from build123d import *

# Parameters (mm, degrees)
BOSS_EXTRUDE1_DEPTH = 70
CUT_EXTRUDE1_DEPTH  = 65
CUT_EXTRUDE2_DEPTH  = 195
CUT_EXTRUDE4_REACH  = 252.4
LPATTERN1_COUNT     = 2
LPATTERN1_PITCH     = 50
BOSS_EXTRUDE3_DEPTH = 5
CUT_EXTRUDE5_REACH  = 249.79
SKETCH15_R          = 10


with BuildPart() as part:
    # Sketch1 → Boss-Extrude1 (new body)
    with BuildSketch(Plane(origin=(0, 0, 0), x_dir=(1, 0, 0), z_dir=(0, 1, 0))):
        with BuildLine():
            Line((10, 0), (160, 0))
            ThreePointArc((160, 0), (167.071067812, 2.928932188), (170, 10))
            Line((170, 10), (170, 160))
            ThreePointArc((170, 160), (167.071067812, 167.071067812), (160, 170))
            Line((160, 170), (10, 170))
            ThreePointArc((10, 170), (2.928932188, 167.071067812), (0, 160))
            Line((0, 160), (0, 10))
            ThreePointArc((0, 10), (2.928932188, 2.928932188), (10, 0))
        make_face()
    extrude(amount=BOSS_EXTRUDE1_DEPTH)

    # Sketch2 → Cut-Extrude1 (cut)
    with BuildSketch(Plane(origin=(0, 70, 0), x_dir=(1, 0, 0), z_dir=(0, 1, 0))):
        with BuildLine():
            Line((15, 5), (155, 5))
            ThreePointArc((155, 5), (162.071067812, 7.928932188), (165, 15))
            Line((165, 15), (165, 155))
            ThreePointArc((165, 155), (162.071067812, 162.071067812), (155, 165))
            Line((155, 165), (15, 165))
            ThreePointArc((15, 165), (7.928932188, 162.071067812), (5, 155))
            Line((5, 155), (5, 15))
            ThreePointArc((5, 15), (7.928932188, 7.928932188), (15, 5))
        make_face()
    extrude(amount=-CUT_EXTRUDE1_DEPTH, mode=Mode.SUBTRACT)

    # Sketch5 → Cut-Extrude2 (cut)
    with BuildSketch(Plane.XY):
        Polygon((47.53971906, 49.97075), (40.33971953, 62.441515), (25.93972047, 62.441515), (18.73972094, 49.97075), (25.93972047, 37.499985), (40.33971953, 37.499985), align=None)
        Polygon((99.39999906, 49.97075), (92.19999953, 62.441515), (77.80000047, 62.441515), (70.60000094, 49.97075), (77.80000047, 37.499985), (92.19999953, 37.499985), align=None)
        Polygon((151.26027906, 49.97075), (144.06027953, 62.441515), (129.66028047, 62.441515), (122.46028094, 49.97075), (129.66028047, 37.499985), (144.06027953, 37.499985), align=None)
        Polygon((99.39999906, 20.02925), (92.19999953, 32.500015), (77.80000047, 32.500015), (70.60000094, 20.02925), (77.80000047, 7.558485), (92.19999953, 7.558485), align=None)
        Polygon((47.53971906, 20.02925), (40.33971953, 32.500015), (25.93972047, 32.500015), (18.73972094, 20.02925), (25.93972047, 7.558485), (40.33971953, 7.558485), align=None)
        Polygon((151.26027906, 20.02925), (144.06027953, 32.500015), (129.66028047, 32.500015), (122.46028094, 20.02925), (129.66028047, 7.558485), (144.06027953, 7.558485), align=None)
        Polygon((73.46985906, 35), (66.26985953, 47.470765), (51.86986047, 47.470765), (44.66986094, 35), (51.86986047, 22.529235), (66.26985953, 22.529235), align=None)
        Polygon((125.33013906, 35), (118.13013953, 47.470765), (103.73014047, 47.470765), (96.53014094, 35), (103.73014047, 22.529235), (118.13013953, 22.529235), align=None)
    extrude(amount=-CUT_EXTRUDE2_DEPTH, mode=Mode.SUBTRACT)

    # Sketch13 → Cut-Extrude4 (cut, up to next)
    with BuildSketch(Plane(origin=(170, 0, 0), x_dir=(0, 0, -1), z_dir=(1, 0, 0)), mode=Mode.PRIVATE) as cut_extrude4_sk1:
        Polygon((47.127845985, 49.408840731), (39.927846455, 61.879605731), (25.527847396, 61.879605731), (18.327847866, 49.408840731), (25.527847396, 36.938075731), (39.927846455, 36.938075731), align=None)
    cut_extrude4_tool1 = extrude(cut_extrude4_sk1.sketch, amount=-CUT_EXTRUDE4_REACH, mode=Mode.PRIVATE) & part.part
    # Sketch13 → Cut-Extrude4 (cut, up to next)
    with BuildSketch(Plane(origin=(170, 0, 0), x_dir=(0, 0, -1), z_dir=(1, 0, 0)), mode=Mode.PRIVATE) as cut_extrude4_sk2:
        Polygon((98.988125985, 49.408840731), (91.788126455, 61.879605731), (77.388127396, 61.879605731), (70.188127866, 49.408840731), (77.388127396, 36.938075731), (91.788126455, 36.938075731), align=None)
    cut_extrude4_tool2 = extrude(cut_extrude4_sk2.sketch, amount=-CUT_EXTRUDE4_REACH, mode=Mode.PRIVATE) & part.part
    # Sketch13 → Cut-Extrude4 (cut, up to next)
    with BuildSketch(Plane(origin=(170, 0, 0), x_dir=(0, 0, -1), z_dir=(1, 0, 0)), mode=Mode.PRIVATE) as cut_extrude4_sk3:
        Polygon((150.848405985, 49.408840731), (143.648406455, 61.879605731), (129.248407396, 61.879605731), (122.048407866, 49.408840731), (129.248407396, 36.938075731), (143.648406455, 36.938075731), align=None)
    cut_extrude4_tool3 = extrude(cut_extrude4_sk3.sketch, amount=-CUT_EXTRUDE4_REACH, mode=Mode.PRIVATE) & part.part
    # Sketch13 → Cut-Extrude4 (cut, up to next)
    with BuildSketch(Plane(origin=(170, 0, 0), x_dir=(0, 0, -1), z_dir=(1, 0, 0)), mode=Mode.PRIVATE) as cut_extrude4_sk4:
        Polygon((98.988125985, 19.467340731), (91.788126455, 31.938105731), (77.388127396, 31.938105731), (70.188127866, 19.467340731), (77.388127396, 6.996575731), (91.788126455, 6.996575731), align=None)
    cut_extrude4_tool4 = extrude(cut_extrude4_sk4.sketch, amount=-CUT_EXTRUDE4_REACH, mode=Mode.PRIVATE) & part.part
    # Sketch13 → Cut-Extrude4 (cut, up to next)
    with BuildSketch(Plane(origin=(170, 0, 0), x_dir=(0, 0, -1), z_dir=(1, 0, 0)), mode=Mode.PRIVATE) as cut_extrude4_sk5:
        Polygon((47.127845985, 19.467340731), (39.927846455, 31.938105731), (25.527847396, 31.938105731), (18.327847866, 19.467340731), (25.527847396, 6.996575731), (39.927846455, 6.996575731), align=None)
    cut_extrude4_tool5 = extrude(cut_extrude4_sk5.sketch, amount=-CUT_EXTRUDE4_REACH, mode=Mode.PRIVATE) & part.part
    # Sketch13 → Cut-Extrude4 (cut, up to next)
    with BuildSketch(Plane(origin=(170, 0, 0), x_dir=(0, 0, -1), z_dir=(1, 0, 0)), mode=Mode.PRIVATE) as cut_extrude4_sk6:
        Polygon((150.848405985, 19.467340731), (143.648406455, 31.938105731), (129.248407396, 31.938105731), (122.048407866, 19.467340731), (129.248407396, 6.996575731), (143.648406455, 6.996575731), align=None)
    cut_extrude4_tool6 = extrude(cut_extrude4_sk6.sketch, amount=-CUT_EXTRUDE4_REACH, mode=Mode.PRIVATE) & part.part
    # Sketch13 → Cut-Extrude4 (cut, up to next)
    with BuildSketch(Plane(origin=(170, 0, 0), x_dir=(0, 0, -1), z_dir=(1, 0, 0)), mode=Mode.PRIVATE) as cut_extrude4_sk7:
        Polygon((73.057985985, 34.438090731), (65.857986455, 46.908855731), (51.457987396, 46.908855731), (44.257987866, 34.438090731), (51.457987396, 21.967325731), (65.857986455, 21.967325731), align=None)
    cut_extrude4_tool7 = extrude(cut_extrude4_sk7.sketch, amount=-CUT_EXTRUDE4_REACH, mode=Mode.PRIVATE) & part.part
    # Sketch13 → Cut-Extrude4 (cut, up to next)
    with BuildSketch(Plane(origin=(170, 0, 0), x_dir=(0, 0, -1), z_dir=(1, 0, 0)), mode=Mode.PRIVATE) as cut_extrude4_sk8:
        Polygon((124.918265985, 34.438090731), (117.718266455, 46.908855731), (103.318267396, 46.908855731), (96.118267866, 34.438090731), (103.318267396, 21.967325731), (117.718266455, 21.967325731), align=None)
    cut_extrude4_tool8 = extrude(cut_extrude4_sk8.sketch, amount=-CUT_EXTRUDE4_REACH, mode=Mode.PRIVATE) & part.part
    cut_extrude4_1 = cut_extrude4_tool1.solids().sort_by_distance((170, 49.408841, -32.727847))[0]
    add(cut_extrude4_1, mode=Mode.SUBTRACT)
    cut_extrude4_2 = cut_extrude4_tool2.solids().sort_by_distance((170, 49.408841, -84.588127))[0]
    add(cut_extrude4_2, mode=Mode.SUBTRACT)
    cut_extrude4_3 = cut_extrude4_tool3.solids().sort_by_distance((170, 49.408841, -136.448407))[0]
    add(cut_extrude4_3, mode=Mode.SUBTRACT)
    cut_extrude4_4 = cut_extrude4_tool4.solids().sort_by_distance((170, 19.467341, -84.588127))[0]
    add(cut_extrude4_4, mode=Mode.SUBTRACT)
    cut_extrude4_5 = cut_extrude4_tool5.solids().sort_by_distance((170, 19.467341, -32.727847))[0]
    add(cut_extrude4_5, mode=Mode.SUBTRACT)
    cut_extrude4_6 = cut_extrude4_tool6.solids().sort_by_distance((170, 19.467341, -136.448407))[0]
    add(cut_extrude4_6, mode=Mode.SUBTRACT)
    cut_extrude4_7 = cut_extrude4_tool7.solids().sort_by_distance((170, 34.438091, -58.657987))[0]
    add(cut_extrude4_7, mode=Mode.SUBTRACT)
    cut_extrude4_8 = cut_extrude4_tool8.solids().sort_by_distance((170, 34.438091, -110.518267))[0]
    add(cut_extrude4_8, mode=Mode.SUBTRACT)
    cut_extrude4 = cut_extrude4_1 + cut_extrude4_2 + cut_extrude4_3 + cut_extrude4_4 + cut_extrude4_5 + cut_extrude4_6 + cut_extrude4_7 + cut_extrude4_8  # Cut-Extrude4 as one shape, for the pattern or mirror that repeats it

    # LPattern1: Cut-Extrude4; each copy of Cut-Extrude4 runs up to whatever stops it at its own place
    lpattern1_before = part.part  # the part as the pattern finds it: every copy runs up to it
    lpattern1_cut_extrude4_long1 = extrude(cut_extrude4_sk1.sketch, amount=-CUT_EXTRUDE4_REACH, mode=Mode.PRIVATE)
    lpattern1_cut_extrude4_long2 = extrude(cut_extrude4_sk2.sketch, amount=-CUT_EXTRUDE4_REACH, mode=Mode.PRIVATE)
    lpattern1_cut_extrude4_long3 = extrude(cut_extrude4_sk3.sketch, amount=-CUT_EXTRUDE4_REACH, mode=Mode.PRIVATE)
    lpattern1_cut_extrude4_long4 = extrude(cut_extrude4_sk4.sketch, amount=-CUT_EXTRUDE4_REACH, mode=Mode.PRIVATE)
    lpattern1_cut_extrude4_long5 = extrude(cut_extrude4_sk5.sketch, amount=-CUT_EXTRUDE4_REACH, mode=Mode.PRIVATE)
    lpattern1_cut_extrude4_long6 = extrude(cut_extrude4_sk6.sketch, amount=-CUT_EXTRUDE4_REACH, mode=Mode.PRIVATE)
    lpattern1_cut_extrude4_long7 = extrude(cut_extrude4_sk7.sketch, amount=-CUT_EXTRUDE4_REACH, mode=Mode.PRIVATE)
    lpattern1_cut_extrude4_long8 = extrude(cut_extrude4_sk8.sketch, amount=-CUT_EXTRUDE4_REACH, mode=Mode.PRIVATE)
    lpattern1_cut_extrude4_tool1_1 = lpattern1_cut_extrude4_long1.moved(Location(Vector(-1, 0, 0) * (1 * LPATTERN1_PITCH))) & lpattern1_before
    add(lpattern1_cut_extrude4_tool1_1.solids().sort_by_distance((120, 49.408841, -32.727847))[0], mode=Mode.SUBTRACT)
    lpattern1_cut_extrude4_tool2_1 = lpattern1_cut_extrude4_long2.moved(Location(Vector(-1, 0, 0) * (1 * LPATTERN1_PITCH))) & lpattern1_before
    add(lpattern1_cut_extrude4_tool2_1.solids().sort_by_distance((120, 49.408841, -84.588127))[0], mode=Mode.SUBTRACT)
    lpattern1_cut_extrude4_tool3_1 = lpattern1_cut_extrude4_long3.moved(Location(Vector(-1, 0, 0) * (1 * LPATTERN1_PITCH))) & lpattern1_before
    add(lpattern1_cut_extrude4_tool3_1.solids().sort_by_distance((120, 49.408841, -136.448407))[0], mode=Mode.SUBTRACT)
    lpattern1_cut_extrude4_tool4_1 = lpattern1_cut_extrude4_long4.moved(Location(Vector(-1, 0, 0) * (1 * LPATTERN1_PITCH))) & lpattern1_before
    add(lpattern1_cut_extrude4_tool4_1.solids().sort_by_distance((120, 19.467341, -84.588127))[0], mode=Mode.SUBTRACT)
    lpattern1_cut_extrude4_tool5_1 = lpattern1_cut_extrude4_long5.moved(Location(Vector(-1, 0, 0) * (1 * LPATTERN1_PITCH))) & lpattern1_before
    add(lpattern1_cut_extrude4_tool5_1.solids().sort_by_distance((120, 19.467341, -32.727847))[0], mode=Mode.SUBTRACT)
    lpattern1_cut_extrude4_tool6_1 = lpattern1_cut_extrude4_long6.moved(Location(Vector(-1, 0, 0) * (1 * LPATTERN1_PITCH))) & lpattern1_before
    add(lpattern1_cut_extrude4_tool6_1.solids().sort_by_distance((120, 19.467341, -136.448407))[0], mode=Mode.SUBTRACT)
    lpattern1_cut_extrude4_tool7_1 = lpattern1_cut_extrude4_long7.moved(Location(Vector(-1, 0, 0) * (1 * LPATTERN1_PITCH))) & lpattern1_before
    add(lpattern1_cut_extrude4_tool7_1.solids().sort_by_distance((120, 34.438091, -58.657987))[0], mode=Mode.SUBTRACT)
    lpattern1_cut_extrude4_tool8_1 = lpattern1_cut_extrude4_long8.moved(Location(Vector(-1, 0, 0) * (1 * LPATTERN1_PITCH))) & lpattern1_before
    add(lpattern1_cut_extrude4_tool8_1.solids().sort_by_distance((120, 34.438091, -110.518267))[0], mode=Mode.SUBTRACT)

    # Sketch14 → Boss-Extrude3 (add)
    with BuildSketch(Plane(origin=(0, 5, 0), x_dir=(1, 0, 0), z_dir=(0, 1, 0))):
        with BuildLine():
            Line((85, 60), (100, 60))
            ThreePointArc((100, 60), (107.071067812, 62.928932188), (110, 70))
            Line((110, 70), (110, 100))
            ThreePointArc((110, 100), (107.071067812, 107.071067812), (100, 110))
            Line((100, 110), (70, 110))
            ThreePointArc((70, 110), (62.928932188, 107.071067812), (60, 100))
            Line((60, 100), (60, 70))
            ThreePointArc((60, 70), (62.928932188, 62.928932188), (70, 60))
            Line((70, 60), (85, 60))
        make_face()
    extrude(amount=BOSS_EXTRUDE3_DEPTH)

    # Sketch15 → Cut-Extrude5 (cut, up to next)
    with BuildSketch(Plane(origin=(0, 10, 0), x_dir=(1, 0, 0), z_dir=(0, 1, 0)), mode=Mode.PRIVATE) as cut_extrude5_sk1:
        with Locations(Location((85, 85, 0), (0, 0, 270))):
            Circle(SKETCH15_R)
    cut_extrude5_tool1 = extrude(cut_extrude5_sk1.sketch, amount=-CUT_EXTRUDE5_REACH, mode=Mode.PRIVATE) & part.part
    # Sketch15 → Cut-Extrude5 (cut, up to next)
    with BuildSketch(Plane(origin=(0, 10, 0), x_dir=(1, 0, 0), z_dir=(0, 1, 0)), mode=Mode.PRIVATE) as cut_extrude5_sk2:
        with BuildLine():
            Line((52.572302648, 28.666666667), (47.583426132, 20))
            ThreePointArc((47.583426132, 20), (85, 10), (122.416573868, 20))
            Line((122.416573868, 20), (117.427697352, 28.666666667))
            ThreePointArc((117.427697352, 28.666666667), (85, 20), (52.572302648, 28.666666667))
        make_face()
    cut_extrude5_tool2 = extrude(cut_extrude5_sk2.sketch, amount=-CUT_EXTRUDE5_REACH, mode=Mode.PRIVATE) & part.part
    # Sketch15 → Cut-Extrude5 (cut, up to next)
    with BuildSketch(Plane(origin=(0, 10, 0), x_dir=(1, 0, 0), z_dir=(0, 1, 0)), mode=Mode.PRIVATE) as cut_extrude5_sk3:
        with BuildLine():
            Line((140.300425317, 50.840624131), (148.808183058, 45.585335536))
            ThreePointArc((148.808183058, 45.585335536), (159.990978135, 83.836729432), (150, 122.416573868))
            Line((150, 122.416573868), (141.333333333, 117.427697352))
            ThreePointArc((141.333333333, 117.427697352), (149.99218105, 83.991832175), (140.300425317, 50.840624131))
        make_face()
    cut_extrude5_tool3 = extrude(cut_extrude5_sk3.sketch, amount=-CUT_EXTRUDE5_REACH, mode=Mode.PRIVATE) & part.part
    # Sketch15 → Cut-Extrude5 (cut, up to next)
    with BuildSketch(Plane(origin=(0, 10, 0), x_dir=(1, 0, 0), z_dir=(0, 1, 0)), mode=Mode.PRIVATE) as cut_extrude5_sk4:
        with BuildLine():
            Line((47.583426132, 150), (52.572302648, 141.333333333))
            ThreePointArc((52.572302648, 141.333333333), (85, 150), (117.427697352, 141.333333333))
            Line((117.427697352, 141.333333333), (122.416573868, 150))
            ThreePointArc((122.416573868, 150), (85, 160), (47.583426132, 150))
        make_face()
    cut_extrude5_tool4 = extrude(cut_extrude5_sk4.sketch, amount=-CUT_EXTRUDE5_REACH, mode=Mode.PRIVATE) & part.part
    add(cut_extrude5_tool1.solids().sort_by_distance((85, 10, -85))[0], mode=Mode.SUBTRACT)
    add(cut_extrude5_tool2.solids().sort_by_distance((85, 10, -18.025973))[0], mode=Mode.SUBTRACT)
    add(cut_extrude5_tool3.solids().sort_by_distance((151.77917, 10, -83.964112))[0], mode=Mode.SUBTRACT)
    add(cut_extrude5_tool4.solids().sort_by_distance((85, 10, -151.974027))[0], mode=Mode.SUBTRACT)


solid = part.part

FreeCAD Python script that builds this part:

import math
import FreeCAD as App
import Part
import Sketcher

V = App.Vector
Q = App.Units.Quantity


def add_polygon(sketch, points):
    """Adds a closed chain of lines whose ends are joined by coincident constraints."""
    first, n = sketch.GeometryCount, len(points)
    for a, b in zip(points, points[1:] + points[:1]):
        sketch.addGeometry(Part.LineSegment(App.Vector(*a, 0), App.Vector(*b, 0)), False)
    for i in range(n):
        sketch.addConstraint(Sketcher.Constraint("Coincident", first + i, 2, first + (i + 1) % n, 1))

doc = App.newDocument("Part")
body = doc.addObject("PartDesign::Body", "Body")

# Sketch on XZ plane
sketch1 = body.newObject("Sketcher::SketchObject", "Sketch")
sketch1.AttachmentSupport = (doc.getObject("XZ_Plane"), [""])
sketch1.MapMode = "FlatFace"
sketch1.addGeometry([
    Part.LineSegment(V(10, 0, 0), V(160, 0, 0)),  # 0
    Part.ArcOfCircle(Part.Circle(V(160, -10, 0), V(0, 0, 1), 10), math.radians(0), math.radians(90)),  # 1
    Part.LineSegment(V(170, -10, 0), V(170, -160, 0)),  # 2
    Part.ArcOfCircle(Part.Circle(V(160, -160, 0), V(0, 0, 1), 10), math.radians(-90), math.radians(0)),  # 3
    Part.LineSegment(V(160, -170, 0), V(10, -170, 0)),  # 4
    Part.ArcOfCircle(Part.Circle(V(10, -160, 0), V(0, 0, 1), 10), math.radians(180), math.radians(270)),  # 5
    Part.LineSegment(V(0, -160, 0), V(0, -10, 0)),  # 6
    Part.ArcOfCircle(Part.Circle(V(10, -10, 0), V(0, 0, 1), 10), math.radians(90), math.radians(180)),  # 7
], False)
sketch1.addConstraint([
    Sketcher.Constraint("Tangent", 0, 2, 1, 2),
    Sketcher.Constraint("Tangent", 1, 1, 2, 1),
    Sketcher.Constraint("Tangent", 2, 2, 3, 2),
    Sketcher.Constraint("Tangent", 3, 1, 4, 1),
    Sketcher.Constraint("Tangent", 4, 2, 5, 2),
    Sketcher.Constraint("Tangent", 5, 1, 6, 1),
    Sketcher.Constraint("Tangent", 6, 2, 7, 2),
    Sketcher.Constraint("Tangent", 7, 1, 0, 1),
    Sketcher.Constraint("Horizontal", 0),
    Sketcher.Constraint("Vertical", 2),
    Sketcher.Constraint("Horizontal", 4),
    Sketcher.Constraint("Vertical", 6),
    Sketcher.Constraint("Equal", 1, 3),
    Sketcher.Constraint("Equal", 3, 5),
    Sketcher.Constraint("Equal", 5, 7),
    Sketcher.Constraint("PointOnObject", 0, 2, -1),
    Sketcher.Constraint("PointOnObject", 5, 1, -2),
    Sketcher.Constraint("Equal", 4, 2),
    Sketcher.Constraint("Radius", 1, Q("10 mm")),
    Sketcher.Constraint("DistanceX", 0, 1, 0, 2, Q("150 mm")),
])
pad1 = body.newObject("PartDesign::Pad", "Pad")
pad1.Profile = sketch1
pad1.Length = 70
pad1.Reversed = True

# Sketch on XZ plane
sketch2 = body.newObject("Sketcher::SketchObject", "Sketch001")
sketch2.AttachmentSupport = (doc.getObject("XZ_Plane"), [""])
sketch2.MapMode = "FlatFace"
sketch2.AttachmentOffset = App.Placement(V(0, 0, -70), App.Rotation())
sketch2.addGeometry([
    Part.LineSegment(V(15, -5, 0), V(155, -5, 0)),  # 0
    Part.ArcOfCircle(Part.Circle(V(155, -15, 0), V(0, 0, 1), 10), math.radians(0), math.radians(90)),  # 1
    Part.LineSegment(V(165, -15, 0), V(165, -155, 0)),  # 2
    Part.ArcOfCircle(Part.Circle(V(155, -155, 0), V(0, 0, 1), 10), math.radians(-90), math.radians(0)),  # 3
    Part.LineSegment(V(155, -165, 0), V(15, -165, 0)),  # 4
    Part.ArcOfCircle(Part.Circle(V(15, -155, 0), V(0, 0, 1), 10), math.radians(180), math.radians(270)),  # 5
    Part.LineSegment(V(5, -155, 0), V(5, -15, 0)),  # 6
    Part.ArcOfCircle(Part.Circle(V(15, -15, 0), V(0, 0, 1), 10), math.radians(90), math.radians(180)),  # 7
], False)
sketch2.addConstraint([
    Sketcher.Constraint("Tangent", 0, 2, 1, 2),
    Sketcher.Constraint("Tangent", 1, 1, 2, 1),
    Sketcher.Constraint("Tangent", 2, 2, 3, 2),
    Sketcher.Constraint("Tangent", 3, 1, 4, 1),
    Sketcher.Constraint("Tangent", 4, 2, 5, 2),
    Sketcher.Constraint("Tangent", 5, 1, 6, 1),
    Sketcher.Constraint("Tangent", 6, 2, 7, 2),
    Sketcher.Constraint("Tangent", 7, 1, 0, 1),
    Sketcher.Constraint("Horizontal", 0),
    Sketcher.Constraint("Vertical", 2),
    Sketcher.Constraint("Horizontal", 4),
    Sketcher.Constraint("Vertical", 6),
    Sketcher.Constraint("Equal", 1, 3),
    Sketcher.Constraint("Equal", 3, 5),
    Sketcher.Constraint("Equal", 5, 7),
    Sketcher.Constraint("Equal", 4, 2),
    Sketcher.Constraint("Radius", 1, Q("10 mm")),
    Sketcher.Constraint("DistanceX", 0, 1, 0, 2, Q("140 mm")),
    Sketcher.Constraint("DistanceX", -1, 1, 1, 3, Q("155 mm")),
    Sketcher.Constraint("DistanceY", 1, 3, -1, 1, Q("15 mm")),
])
pocket1 = body.newObject("PartDesign::Pocket", "Pocket")
pocket1.Profile = sketch2
pocket1.Length = 65
pocket1.Reversed = True

# Sketch on XY plane
sketch3 = body.newObject("Sketcher::SketchObject", "Sketch002")
sketch3.AttachmentSupport = (doc.getObject("XY_Plane"), [""])
sketch3.MapMode = "FlatFace"
add_polygon(sketch3, [(48, 50), (40, 62), (26, 62), (19, 50), (26, 37), (40, 37)])  # lines 0-5
add_polygon(sketch3, [(99, 50), (92, 62), (78, 62), (71, 50), (78, 37), (92, 37)])  # lines 6-11
add_polygon(sketch3, [(151, 50), (144, 62), (130, 62), (122, 50), (130, 37), (144, 37)])  # lines 12-17
add_polygon(sketch3, [(99, 20), (92, 33), (78, 33), (71, 20), (78, 8), (92, 8)])  # lines 18-23
add_polygon(sketch3, [(48, 20), (40, 33), (26, 33), (19, 20), (26, 8), (40, 8)])  # lines 24-29
add_polygon(sketch3, [(151, 20), (144, 33), (130, 33), (122, 20), (130, 8), (144, 8)])  # lines 30-35
add_polygon(sketch3, [(73, 35), (66, 47), (52, 47), (45, 35), (52, 23), (66, 23)])  # lines 36-41
add_polygon(sketch3, [(125, 35), (118, 47), (104, 47), (97, 35), (104, 23), (118, 23)])  # lines 42-47
sketch3.addConstraint([
    Sketcher.Constraint("Horizontal", 1),
    Sketcher.Constraint("Horizontal", 4),
    Sketcher.Constraint("Horizontal", 7),
    Sketcher.Constraint("Horizontal", 10),
    Sketcher.Constraint("Horizontal", 13),
    Sketcher.Constraint("Horizontal", 16),
    Sketcher.Constraint("Horizontal", 19),
    Sketcher.Constraint("Horizontal", 22),
    Sketcher.Constraint("Horizontal", 25),
    Sketcher.Constraint("Horizontal", 28),
    Sketcher.Constraint("Horizontal", 31),
    Sketcher.Constraint("Horizontal", 34),
    Sketcher.Constraint("Horizontal", 37),
    Sketcher.Constraint("Horizontal", 40),
    Sketcher.Constraint("Horizontal", 43),
    Sketcher.Constraint("Horizontal", 46),
    Sketcher.Constraint("Parallel", 0, 3),
    Sketcher.Constraint("Parallel", 2, 5),
    Sketcher.Constraint("Parallel", 3, 6),
    Sketcher.Constraint("Parallel", 5, 8),
    Sketcher.Constraint("Parallel", 6, 9),
    Sketcher.Constraint("Parallel", 8, 11),
    Sketcher.Constraint("Parallel", 9, 12),
    Sketcher.Constraint("Parallel", 11, 14),
    Sketcher.Constraint("Parallel", 12, 15),
    Sketcher.Constraint("Parallel", 14, 17),
    Sketcher.Constraint("Parallel", 15, 18),
    Sketcher.Constraint("Parallel", 17, 20),
    Sketcher.Constraint("Parallel", 18, 21),
    Sketcher.Constraint("Parallel", 20, 23),
    Sketcher.Constraint("Parallel", 21, 24),
    Sketcher.Constraint("Parallel", 23, 26),
    Sketcher.Constraint("Parallel", 24, 27),
    Sketcher.Constraint("Parallel", 26, 29),
    Sketcher.Constraint("Parallel", 27, 30),
    Sketcher.Constraint("Parallel", 29, 32),
    Sketcher.Constraint("Parallel", 30, 33),
    Sketcher.Constraint("Parallel", 32, 35),
    Sketcher.Constraint("Parallel", 33, 36),
    Sketcher.Constraint("Parallel", 35, 38),
    Sketcher.Constraint("Parallel", 36, 39),
    Sketcher.Constraint("Parallel", 38, 41),
    Sketcher.Constraint("Parallel", 39, 42),
    Sketcher.Constraint("Parallel", 41, 44),
    Sketcher.Constraint("Parallel", 42, 45),
    Sketcher.Constraint("Parallel", 44, 47),
    Sketcher.Constraint("Horizontal", 2, 2, 5, 2),
    Sketcher.Constraint("Horizontal", 1, 2, 6, 2),
    Sketcher.Constraint("Horizontal", 5, 2, 8, 2),
    Sketcher.Constraint("Horizontal", 4, 2, 9, 2),
    Sketcher.Constraint("Horizontal", 8, 2, 11, 2),
    Sketcher.Constraint("Horizontal", 7, 2, 12, 2),
    Sketcher.Constraint("Horizontal", 11, 2, 14, 2),
    Sketcher.Constraint("Horizontal", 10, 2, 15, 2),
    Sketcher.Constraint("Horizontal", 14, 2, 17, 2),
    Sketcher.Constraint("Horizontal", 20, 2, 23, 2),
    Sketcher.Constraint("Horizontal", 19, 2, 24, 2),
    Sketcher.Constraint("Horizontal", 23, 2, 26, 2),
    Sketcher.Constraint("Horizontal", 22, 2, 27, 2),
    Sketcher.Constraint("Horizontal", 26, 2, 29, 2),
    Sketcher.Constraint("Horizontal", 25, 2, 30, 2),
    Sketcher.Constraint("Horizontal", 29, 2, 32, 2),
    Sketcher.Constraint("Horizontal", 28, 2, 33, 2),
    Sketcher.Constraint("Horizontal", 32, 2, 35, 2),
    Sketcher.Constraint("Horizontal", 38, 2, 41, 2),
    Sketcher.Constraint("Horizontal", 37, 2, 42, 2),
    Sketcher.Constraint("Horizontal", 41, 2, 44, 2),
    Sketcher.Constraint("Horizontal", 40, 2, 45, 2),
    Sketcher.Constraint("Horizontal", 44, 2, 47, 2),
    Sketcher.Constraint("Vertical", 1, 2, 3, 2),
    Sketcher.Constraint("Vertical", 0, 2, 4, 2),
    Sketcher.Constraint("Vertical", 10, 2, 18, 2),
    Sketcher.Constraint("Vertical", 9, 2, 19, 2),
    Sketcher.Constraint("Vertical", 8, 2, 20, 2),
    Sketcher.Constraint("Vertical", 19, 2, 21, 2),
    Sketcher.Constraint("Vertical", 4, 2, 24, 2),
    Sketcher.Constraint("Vertical", 3, 2, 25, 2),
    Sketcher.Constraint("Vertical", 16, 2, 30, 2),
    Sketcher.Constraint("Vertical", 15, 2, 31, 2),
    Sketcher.Constraint("Vertical", 37, 2, 39, 2),
    Sketcher.Constraint("Equal", 4, 7),
    Sketcher.Constraint("Equal", 10, 13),
    Sketcher.Constraint("Equal", 34, 37),
    Sketcher.Constraint("Equal", 40, 43),
    Sketcher.Constraint("Equal", 35, 36),
    Sketcher.Constraint("Angle", 0, Q("120 deg")),
    Sketcher.Constraint("DistanceX", 1, 2, 1, 1, Q("14.399999 mm")),
    Sketcher.Constraint("DistanceY", -1, 1, 38, 2, Q("35 mm")),
    Sketcher.Constraint("Distance", 0, Q("14.399999 mm")),
    Sketcher.Constraint("DistanceX", -1, 1, 6, 2, Q("92.2 mm")),
    Sketcher.Constraint("DistanceY", 18, 2, 6, 2, Q("29.9415 mm")),
    Sketcher.Constraint("DistanceX", -1, 1, 0, 2, Q("40.33972 mm")),
    Sketcher.Constraint("DistanceY", -1, 1, 2, 2, Q("49.97075 mm")),
    Sketcher.Constraint("DistanceX", -1, 1, 12, 2, Q("144.06028 mm")),
    Sketcher.Constraint("DistanceX", -1, 1, 36, 2, Q("66.26986 mm")),
    Sketcher.Constraint("DistanceX", -1, 1, 42, 2, Q("118.13014 mm")),
])
pocket2 = body.newObject("PartDesign::Pocket", "Pocket001")
pocket2.Profile = sketch3
pocket2.Length = 195

# Sketch on YZ plane
sketch4 = body.newObject("Sketcher::SketchObject", "Sketch003")
sketch4.AttachmentSupport = (doc.getObject("YZ_Plane"), [""])
sketch4.MapMode = "FlatFace"
sketch4.AttachmentOffset = App.Placement(V(0, 0, 170), App.Rotation())
add_polygon(sketch4, [(49, -47), (62, -40), (62, -26), (49, -18), (37, -26), (37, -40)])  # lines 0-5
sketch4.addConstraint([
    Sketcher.Constraint("Vertical", 1),
    Sketcher.Constraint("Vertical", 4),
    Sketcher.Constraint("Parallel", 0, 3),
    Sketcher.Constraint("Parallel", 2, 5),
    Sketcher.Constraint("Horizontal", 1, 2, 3, 2),
    Sketcher.Constraint("Horizontal", 0, 2, 4, 2),
    Sketcher.Constraint("Vertical", 2, 2, 5, 2),
    Sketcher.Constraint("Angle", 0, Q("30 deg")),
    Sketcher.Constraint("DistanceY", 1, 1, 1, 2, Q("14.399999 mm")),
    Sketcher.Constraint("Distance", 0, Q("14.399999 mm")),
    Sketcher.Constraint("DistanceX", -1, 1, 2, 2, Q("49.408841 mm")),
    Sketcher.Constraint("DistanceY", 0, 2, -1, 1, Q("39.927846 mm")),
])
pocket3 = body.newObject("PartDesign::Pocket", "Pocket002")
pocket3.Profile = sketch4
pocket3.Type = "UpToFirst"

# Sketch on YZ plane
sketch5 = body.newObject("Sketcher::SketchObject", "Sketch004")
sketch5.AttachmentSupport = (doc.getObject("YZ_Plane"), [""])
sketch5.MapMode = "FlatFace"
sketch5.AttachmentOffset = App.Placement(V(0, 0, 170), App.Rotation())
add_polygon(sketch5, [(49, -99), (62, -92), (62, -77), (49, -70), (37, -77), (37, -92)])  # lines 0-5
sketch5.addConstraint([
    Sketcher.Constraint("Vertical", 1),
    Sketcher.Constraint("Vertical", 4),
    Sketcher.Constraint("Parallel", 0, 3),
    Sketcher.Constraint("Parallel", 2, 5),
    Sketcher.Constraint("Horizontal", 1, 2, 3, 2),
    Sketcher.Constraint("Horizontal", 0, 2, 4, 2),
    Sketcher.Constraint("Vertical", 2, 2, 5, 2),
    Sketcher.Constraint("Angle", 0, Q("30 deg")),
    Sketcher.Constraint("DistanceY", 1, 1, 1, 2, Q("14.399999 mm")),
    Sketcher.Constraint("Distance", 0, Q("14.399999 mm")),
    Sketcher.Constraint("DistanceX", -1, 1, 2, 2, Q("49.408841 mm")),
    Sketcher.Constraint("DistanceY", 0, 2, -1, 1, Q("91.788126 mm")),
])
pocket4 = body.newObject("PartDesign::Pocket", "Pocket003")
pocket4.Profile = sketch5
pocket4.Type = "UpToFirst"

# Sketch on YZ plane
sketch6 = body.newObject("Sketcher::SketchObject", "Sketch005")
sketch6.AttachmentSupport = (doc.getObject("YZ_Plane"), [""])
sketch6.MapMode = "FlatFace"
sketch6.AttachmentOffset = App.Placement(V(0, 0, 170), App.Rotation())
add_polygon(sketch6, [(49, -151), (62, -144), (62, -129), (49, -122), (37, -129), (37, -144)])  # lines 0-5
sketch6.addConstraint([
    Sketcher.Constraint("Vertical", 1),
    Sketcher.Constraint("Vertical", 4),
    Sketcher.Constraint("Parallel", 0, 3),
    Sketcher.Constraint("Parallel", 2, 5),
    Sketcher.Constraint("Horizontal", 1, 2, 3, 2),
    Sketcher.Constraint("Horizontal", 0, 2, 4, 2),
    Sketcher.Constraint("Vertical", 2, 2, 5, 2),
    Sketcher.Constraint("Angle", 0, Q("30 deg")),
    Sketcher.Constraint("DistanceY", 1, 1, 1, 2, Q("14.399999 mm")),
    Sketcher.Constraint("Distance", 0, Q("14.399999 mm")),
    Sketcher.Constraint("DistanceX", -1, 1, 2, 2, Q("49.408841 mm")),
    Sketcher.Constraint("DistanceY", 0, 2, -1, 1, Q("143.648406 mm")),
])
pocket5 = body.newObject("PartDesign::Pocket", "Pocket004")
pocket5.Profile = sketch6
pocket5.Type = "UpToFirst"

# Sketch on YZ plane
sketch7 = body.newObject("Sketcher::SketchObject", "Sketch006")
sketch7.AttachmentSupport = (doc.getObject("YZ_Plane"), [""])
sketch7.MapMode = "FlatFace"
sketch7.AttachmentOffset = App.Placement(V(0, 0, 170), App.Rotation())
add_polygon(sketch7, [(19, -99), (32, -92), (32, -77), (19, -70), (7, -77), (7, -92)])  # lines 0-5
sketch7.addConstraint([
    Sketcher.Constraint("Vertical", 1),
    Sketcher.Constraint("Vertical", 4),
    Sketcher.Constraint("Parallel", 0, 3),
    Sketcher.Constraint("Parallel", 2, 5),
    Sketcher.Constraint("Horizontal", 1, 2, 3, 2),
    Sketcher.Constraint("Horizontal", 0, 2, 4, 2),
    Sketcher.Constraint("Vertical", 2, 2, 5, 2),
    Sketcher.Constraint("Angle", 0, Q("30 deg")),
    Sketcher.Constraint("DistanceY", 1, 1, 1, 2, Q("14.399999 mm")),
    Sketcher.Constraint("Distance", 0, Q("14.399999 mm")),
    Sketcher.Constraint("DistanceX", -1, 1, 2, 2, Q("19.467341 mm")),
    Sketcher.Constraint("DistanceY", 0, 2, -1, 1, Q("91.788126 mm")),
])
pocket6 = body.newObject("PartDesign::Pocket", "Pocket005")
pocket6.Profile = sketch7
pocket6.Type = "UpToFirst"

# Sketch on YZ plane
sketch8 = body.newObject("Sketcher::SketchObject", "Sketch007")
sketch8.AttachmentSupport = (doc.getObject("YZ_Plane"), [""])
sketch8.MapMode = "FlatFace"
sketch8.AttachmentOffset = App.Placement(V(0, 0, 170), App.Rotation())
add_polygon(sketch8, [(19, -47), (32, -40), (32, -26), (19, -18), (7, -26), (7, -40)])  # lines 0-5
sketch8.addConstraint([
    Sketcher.Constraint("Vertical", 1),
    Sketcher.Constraint("Vertical", 4),
    Sketcher.Constraint("Parallel", 0, 3),
    Sketcher.Constraint("Parallel", 2, 5),
    Sketcher.Constraint("Horizontal", 1, 2, 3, 2),
    Sketcher.Constraint("Horizontal", 0, 2, 4, 2),
    Sketcher.Constraint("Vertical", 2, 2, 5, 2),
    Sketcher.Constraint("Angle", 0, Q("30 deg")),
    Sketcher.Constraint("DistanceY", 1, 1, 1, 2, Q("14.399999 mm")),
    Sketcher.Constraint("Distance", 0, Q("14.399999 mm")),
    Sketcher.Constraint("DistanceX", -1, 1, 2, 2, Q("19.467341 mm")),
    Sketcher.Constraint("DistanceY", 0, 2, -1, 1, Q("39.927846 mm")),
])
pocket7 = body.newObject("PartDesign::Pocket", "Pocket006")
pocket7.Profile = sketch8
pocket7.Type = "UpToFirst"

# Sketch on YZ plane
sketch9 = body.newObject("Sketcher::SketchObject", "Sketch008")
sketch9.AttachmentSupport = (doc.getObject("YZ_Plane"), [""])
sketch9.MapMode = "FlatFace"
sketch9.AttachmentOffset = App.Placement(V(0, 0, 170), App.Rotation())
add_polygon(sketch9, [(19, -151), (32, -144), (32, -129), (19, -122), (7, -129), (7, -144)])  # lines 0-5
sketch9.addConstraint([
    Sketcher.Constraint("Vertical", 1),
    Sketcher.Constraint("Vertical", 4),
    Sketcher.Constraint("Parallel", 0, 3),
    Sketcher.Constraint("Parallel", 2, 5),
    Sketcher.Constraint("Horizontal", 1, 2, 3, 2),
    Sketcher.Constraint("Horizontal", 0, 2, 4, 2),
    Sketcher.Constraint("Vertical", 2, 2, 5, 2),
    Sketcher.Constraint("Angle", 0, Q("30 deg")),
    Sketcher.Constraint("DistanceY", 1, 1, 1, 2, Q("14.399999 mm")),
    Sketcher.Constraint("Distance", 0, Q("14.399999 mm")),
    Sketcher.Constraint("DistanceX", -1, 1, 2, 2, Q("19.467341 mm")),
    Sketcher.Constraint("DistanceY", 0, 2, -1, 1, Q("143.648406 mm")),
])
pocket8 = body.newObject("PartDesign::Pocket", "Pocket007")
pocket8.Profile = sketch9
pocket8.Type = "UpToFirst"

# Sketch on YZ plane
sketch10 = body.newObject("Sketcher::SketchObject", "Sketch009")
sketch10.AttachmentSupport = (doc.getObject("YZ_Plane"), [""])
sketch10.MapMode = "FlatFace"
sketch10.AttachmentOffset = App.Placement(V(0, 0, 170), App.Rotation())
add_polygon(sketch10, [(34, -73), (47, -66), (47, -51), (34, -44), (22, -51), (22, -66)])  # lines 0-5
sketch10.addConstraint([
    Sketcher.Constraint("Vertical", 1),
    Sketcher.Constraint("Vertical", 4),
    Sketcher.Constraint("Parallel", 0, 3),
    Sketcher.Constraint("Parallel", 2, 5),
    Sketcher.Constraint("Horizontal", 1, 2, 3, 2),
    Sketcher.Constraint("Horizontal", 0, 2, 4, 2),
    Sketcher.Constraint("Vertical", 2, 2, 5, 2),
    Sketcher.Constraint("Angle", 0, Q("30 deg")),
    Sketcher.Constraint("DistanceY", 1, 1, 1, 2, Q("14.399999 mm")),
    Sketcher.Constraint("Distance", 0, Q("14.399999 mm")),
    Sketcher.Constraint("DistanceX", -1, 1, 2, 2, Q("34.438091 mm")),
    Sketcher.Constraint("DistanceY", 0, 2, -1, 1, Q("65.857986 mm")),
])
pocket9 = body.newObject("PartDesign::Pocket", "Pocket008")
pocket9.Profile = sketch10
pocket9.Type = "UpToFirst"

# Sketch on YZ plane
sketch11 = body.newObject("Sketcher::SketchObject", "Sketch010")
sketch11.AttachmentSupport = (doc.getObject("YZ_Plane"), [""])
sketch11.MapMode = "FlatFace"
sketch11.AttachmentOffset = App.Placement(V(0, 0, 170), App.Rotation())
add_polygon(sketch11, [(34, -125), (47, -118), (47, -103), (34, -96), (22, -103), (22, -118)])  # lines 0-5
sketch11.addConstraint([
    Sketcher.Constraint("Vertical", 1),
    Sketcher.Constraint("Vertical", 4),
    Sketcher.Constraint("Parallel", 0, 3),
    Sketcher.Constraint("Parallel", 2, 5),
    Sketcher.Constraint("Horizontal", 1, 2, 3, 2),
    Sketcher.Constraint("Horizontal", 0, 2, 4, 2),
    Sketcher.Constraint("Vertical", 2, 2, 5, 2),
    Sketcher.Constraint("Angle", 0, Q("30 deg")),
    Sketcher.Constraint("DistanceY", 1, 1, 1, 2, Q("14.399999 mm")),
    Sketcher.Constraint("Distance", 0, Q("14.399999 mm")),
    Sketcher.Constraint("DistanceX", -1, 1, 2, 2, Q("34.438091 mm")),
    Sketcher.Constraint("DistanceY", 0, 2, -1, 1, Q("117.718266 mm")),
])
pocket10 = body.newObject("PartDesign::Pocket", "Pocket009")
pocket10.Profile = sketch11
pocket10.Type = "UpToFirst"
pocket11 = body.newObject("PartDesign::Pocket", "Pocket010")
pocket11.Profile = sketch4
pocket11.Length = 170
pocket12 = body.newObject("PartDesign::Pocket", "Pocket011")
pocket12.Profile = sketch5
pocket12.Length = 170
pocket13 = body.newObject("PartDesign::Pocket", "Pocket012")
pocket13.Profile = sketch6
pocket13.Length = 170
pocket14 = body.newObject("PartDesign::Pocket", "Pocket013")
pocket14.Profile = sketch7
pocket14.Length = 170
pocket15 = body.newObject("PartDesign::Pocket", "Pocket014")
pocket15.Profile = sketch8
pocket15.Length = 170
pocket16 = body.newObject("PartDesign::Pocket", "Pocket015")
pocket16.Profile = sketch9
pocket16.Length = 170
pocket17 = body.newObject("PartDesign::Pocket", "Pocket016")
pocket17.Profile = sketch10
pocket17.Length = 170
pocket18 = body.newObject("PartDesign::Pocket", "Pocket017")
pocket18.Profile = sketch11
pocket18.Length = 170

# Sketch on XZ plane
sketch12 = body.newObject("Sketcher::SketchObject", "Sketch011")
sketch12.AttachmentSupport = (doc.getObject("XZ_Plane"), [""])
sketch12.MapMode = "FlatFace"
sketch12.AttachmentOffset = App.Placement(V(0, 0, -5), App.Rotation())
sketch12.addGeometry([
    Part.ArcOfCircle(Part.Circle(V(100, -70, 0), V(0, 0, 1), 10), math.radians(0), math.radians(90)),  # 0
    Part.LineSegment(V(110, -70, 0), V(110, -100, 0)),  # 1
    Part.ArcOfCircle(Part.Circle(V(100, -100, 0), V(0, 0, 1), 10), math.radians(-90), math.radians(0)),  # 2
    Part.LineSegment(V(100, -110, 0), V(70, -110, 0)),  # 3
    Part.ArcOfCircle(Part.Circle(V(70, -100, 0), V(0, 0, 1), 10), math.radians(180), math.radians(270)),  # 4
    Part.LineSegment(V(60, -100, 0), V(60, -70, 0)),  # 5
    Part.ArcOfCircle(Part.Circle(V(70, -70, 0), V(0, 0, 1), 10), math.radians(90), math.radians(180)),  # 6
    Part.LineSegment(V(70, -60, 0), V(100, -60, 0)),  # 7
], False)
sketch12.addConstraint([
    Sketcher.Constraint("Tangent", 0, 1, 1, 1),
    Sketcher.Constraint("Tangent", 1, 2, 2, 2),
    Sketcher.Constraint("Tangent", 2, 1, 3, 1),
    Sketcher.Constraint("Tangent", 3, 2, 4, 2),
    Sketcher.Constraint("Tangent", 4, 1, 5, 1),
    Sketcher.Constraint("Tangent", 5, 2, 6, 2),
    Sketcher.Constraint("Tangent", 6, 1, 7, 1),
    Sketcher.Constraint("Tangent", 7, 2, 0, 2),
    Sketcher.Constraint("Vertical", 1),
    Sketcher.Constraint("Horizontal", 3),
    Sketcher.Constraint("Vertical", 5),
    Sketcher.Constraint("Horizontal", 7),
    Sketcher.Constraint("Equal", 0, 2),
    Sketcher.Constraint("Equal", 2, 4),
    Sketcher.Constraint("Equal", 4, 6),
    Sketcher.Constraint("Equal", 7, 1),
    Sketcher.Constraint("Radius", 0, Q("10 mm")),
    Sketcher.Constraint("DistanceX", 3, 2, 3, 1, Q("30 mm")),
    Sketcher.Constraint("DistanceX", -1, 1, 0, 3, Q("100 mm")),
    Sketcher.Constraint("DistanceY", 0, 3, -1, 1, Q("70 mm")),
])
pad2 = body.newObject("PartDesign::Pad", "Pad001")
pad2.Profile = sketch12
pad2.Length = 5
pad2.Reversed = True

# Sketch on XZ plane
sketch13 = body.newObject("Sketcher::SketchObject", "Sketch012")
sketch13.AttachmentSupport = (doc.getObject("XZ_Plane"), [""])
sketch13.MapMode = "FlatFace"
sketch13.AttachmentOffset = App.Placement(V(0, 0, -10), App.Rotation())
sketch13.addGeometry(Part.Circle(V(85, -85, 0), V(0, 0, 1), 10), False)
sketch13.addConstraint([
    Sketcher.Constraint("Diameter", 0, Q("20 mm")),
    Sketcher.Constraint("DistanceX", -1, 1, 0, 3, Q("85 mm")),
    Sketcher.Constraint("DistanceY", 0, 3, -1, 1, Q("85 mm")),
])
pocket19 = body.newObject("PartDesign::Pocket", "Pocket018")
pocket19.Profile = sketch13
pocket19.Type = "UpToFirst"
pocket19.Reversed = True

# Sketch on XZ plane
sketch14 = body.newObject("Sketcher::SketchObject", "Sketch013")
sketch14.AttachmentSupport = (doc.getObject("XZ_Plane"), [""])
sketch14.MapMode = "FlatFace"
sketch14.AttachmentOffset = App.Placement(V(0, 0, -10), App.Rotation())
sketch14.addGeometry([
    Part.LineSegment(V(53, -29, 0), V(48, -20, 0)),
    Part.ArcOfCircle(Part.Circle(V(85, -85, 0), V(0, 0, 1), 75), math.radians(60), math.radians(120)),
    Part.LineSegment(V(122, -20, 0), V(117, -29, 0)),
    Part.ArcOfCircle(Part.Circle(V(85, -85, 0), V(0, 0, 1), 65), math.radians(60), math.radians(120)),
], False)
sketch14.addConstraint([
    Sketcher.Constraint("Coincident", 0, 2, 1, 2),
    Sketcher.Constraint("Coincident", 1, 1, 2, 1),
    Sketcher.Constraint("Coincident", 2, 2, 3, 1),
    Sketcher.Constraint("Coincident", 3, 2, 0, 1),
    Sketcher.Constraint("Coincident", 3, 3, 1, 3),
    Sketcher.Constraint("Horizontal", 0, 2, 1, 1),
    Sketcher.Constraint("Horizontal", 2, 2, 3, 2),
    Sketcher.Constraint("Radius", 1, Q("75 mm")),
    Sketcher.Constraint("Radius", 3, Q("65 mm")),
    Sketcher.Constraint("DistanceX", -1, 1, 1, 3, Q("85 mm")),
    Sketcher.Constraint("DistanceY", 1, 3, -1, 1, Q("85 mm")),
    Sketcher.Constraint("DistanceY", 0, 2, -1, 1, Q("20 mm")),
    Sketcher.Constraint("DistanceX", 0, 2, 2, 2, Q("69.844271 mm")),
])
pocket20 = body.newObject("PartDesign::Pocket", "Pocket019")
pocket20.Profile = sketch14
pocket20.Length = 10
pocket20.Reversed = True

# Sketch on XZ plane
sketch15 = body.newObject("Sketcher::SketchObject", "Sketch014")
sketch15.AttachmentSupport = (doc.getObject("XZ_Plane"), [""])
sketch15.MapMode = "FlatFace"
sketch15.AttachmentOffset = App.Placement(V(0, 0, -10), App.Rotation())
sketch15.addGeometry([
    Part.LineSegment(V(140, -51, 0), V(149, -46, 0)),
    Part.ArcOfCircle(Part.Circle(V(85, -85, 0), V(0, 0, 1), 75), math.radians(-30), math.radians(32)),
    Part.LineSegment(V(150, -122, 0), V(141, -117, 0)),
    Part.ArcOfCircle(Part.Circle(V(85, -85, 0), V(0, 0, 1), 65), math.radians(-30), math.radians(32)),
], False)
sketch15.addConstraint([
    Sketcher.Constraint("Coincident", 0, 2, 1, 2),
    Sketcher.Constraint("Coincident", 1, 1, 2, 1),
    Sketcher.Constraint("Coincident", 2, 2, 3, 1),
    Sketcher.Constraint("Coincident", 3, 2, 0, 1),
    Sketcher.Constraint("Coincident", 3, 3, 1, 3),
    Sketcher.Constraint("Radius", 1, Q("75 mm")),
    Sketcher.Constraint("Radius", 3, Q("65 mm")),
    Sketcher.Constraint("DistanceX", -1, 1, 1, 3, Q("85 mm")),
    Sketcher.Constraint("DistanceY", 1, 3, -1, 1, Q("85 mm")),
    Sketcher.Constraint("DistanceX", -1, 1, 1, 1, Q("150 mm")),
    Sketcher.Constraint("DistanceY", 1, 1, 0, 2, Q("76.831238 mm")),
    Sketcher.Constraint("DistanceX", 2, 2, 0, 2, Q("7.47485 mm")),
    Sketcher.Constraint("DistanceY", 3, 2, 0, 2, Q("5.255289 mm")),
])
pocket21 = body.newObject("PartDesign::Pocket", "Pocket020")
pocket21.Profile = sketch15
pocket21.Length = 10
pocket21.Reversed = True

# Sketch on XZ plane
sketch16 = body.newObject("Sketcher::SketchObject", "Sketch015")
sketch16.AttachmentSupport = (doc.getObject("XZ_Plane"), [""])
sketch16.MapMode = "FlatFace"
sketch16.AttachmentOffset = App.Placement(V(0, 0, -10), App.Rotation())
sketch16.addGeometry([
    Part.LineSegment(V(48, -150, 0), V(53, -141, 0)),
    Part.ArcOfCircle(Part.Circle(V(85, -85, 0), V(0, 0, 1), 65), math.radians(-120), math.radians(-60)),
    Part.LineSegment(V(117, -141, 0), V(122, -150, 0)),
    Part.ArcOfCircle(Part.Circle(V(85, -85, 0), V(0, 0, 1), 75), math.radians(-120), math.radians(-60)),
], False)
sketch16.addConstraint([
    Sketcher.Constraint("Coincident", 0, 2, 1, 1),
    Sketcher.Constraint("Coincident", 1, 2, 2, 1),
    Sketcher.Constraint("Coincident", 2, 2, 3, 2),
    Sketcher.Constraint("Coincident", 3, 1, 0, 1),
    Sketcher.Constraint("Coincident", 3, 3, 1, 3),
    Sketcher.Constraint("Horizontal", 0, 2, 1, 2),
    Sketcher.Constraint("Horizontal", 2, 2, 3, 1),
    Sketcher.Constraint("Radius", 1, Q("65 mm")),
    Sketcher.Constraint("Radius", 3, Q("75 mm")),
    Sketcher.Constraint("DistanceX", -1, 1, 1, 3, Q("85 mm")),
    Sketcher.Constraint("DistanceY", 1, 3, -1, 1, Q("85 mm")),
    Sketcher.Constraint("DistanceY", 2, 2, -1, 1, Q("150 mm")),
    Sketcher.Constraint("DistanceX", 0, 2, 2, 2, Q("69.844271 mm")),
])
pocket22 = body.newObject("PartDesign::Pocket", "Pocket021")
pocket22.Profile = sketch16
pocket22.Length = 10
pocket22.Reversed = True

doc.recompute()
